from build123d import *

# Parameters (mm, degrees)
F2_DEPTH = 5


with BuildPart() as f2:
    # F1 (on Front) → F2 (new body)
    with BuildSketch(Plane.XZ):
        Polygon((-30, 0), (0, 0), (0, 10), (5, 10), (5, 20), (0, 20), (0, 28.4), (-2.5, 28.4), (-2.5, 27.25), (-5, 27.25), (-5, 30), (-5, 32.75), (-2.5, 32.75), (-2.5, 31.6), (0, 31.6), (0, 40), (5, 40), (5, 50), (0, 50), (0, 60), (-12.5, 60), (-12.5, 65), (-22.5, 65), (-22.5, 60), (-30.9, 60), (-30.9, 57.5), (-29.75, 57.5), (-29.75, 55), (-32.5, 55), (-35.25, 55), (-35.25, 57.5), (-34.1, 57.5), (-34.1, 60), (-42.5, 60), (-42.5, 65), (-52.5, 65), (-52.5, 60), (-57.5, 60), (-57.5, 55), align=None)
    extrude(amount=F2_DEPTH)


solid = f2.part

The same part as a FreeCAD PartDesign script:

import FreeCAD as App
import Part
import Sketcher

doc = App.newDocument("Part")
body = doc.addObject("PartDesign::Body", "Body")

sketch1 = doc.addObject("Sketcher::SketchObject", "Sketch")
body.addObject(sketch1)
sketch1.AttachmentSupport = (doc.XZ_Plane, [""])
sketch1.MapMode = "FlatFace"
sketch1.addGeometry([
    Part.LineSegment(App.Vector(-30, 0, 0), App.Vector(0, 0, 0)),
    Part.LineSegment(App.Vector(0, 0, 0), App.Vector(0, 10, 0)),
    Part.LineSegment(App.Vector(0, 10, 0), App.Vector(5, 10, 0)),
    Part.LineSegment(App.Vector(5, 10, 0), App.Vector(5, 20, 0)),
    Part.LineSegment(App.Vector(5, 20, 0), App.Vector(0, 20, 0)),
    Part.LineSegment(App.Vector(0, 20, 0), App.Vector(0, 28.4, 0)),
    Part.LineSegment(App.Vector(0, 28.4, 0), App.Vector(-2.5, 28.4, 0)),
    Part.LineSegment(App.Vector(-2.5, 28.4, 0), App.Vector(-2.5, 27.2, 0)),
    Part.LineSegment(App.Vector(-2.5, 27.2, 0), App.Vector(-5, 27.2, 0)),
    Part.LineSegment(App.Vector(-5, 27.2, 0), App.Vector(-5, 32.8, 0)),
    Part.LineSegment(App.Vector(-5, 32.8, 0), App.Vector(-2.5, 32.8, 0)),
    Part.LineSegment(App.Vector(-2.5, 32.8, 0), App.Vector(-2.5, 31.6, 0)),
    Part.LineSegment(App.Vector(-2.5, 31.6, 0), App.Vector(0, 31.6, 0)),
    Part.LineSegment(App.Vector(0, 31.6, 0), App.Vector(0, 40, 0)),
    Part.LineSegment(App.Vector(0, 40, 0), App.Vector(5, 40, 0)),
    Part.LineSegment(App.Vector(5, 40, 0), App.Vector(5, 50, 0)),
    Part.LineSegment(App.Vector(5, 50, 0), App.Vector(0, 50, 0)),
    Part.LineSegment(App.Vector(0, 50, 0), App.Vector(0, 60, 0)),
    Part.LineSegment(App.Vector(0, 60, 0), App.Vector(-12.5, 60, 0)),
    Part.LineSegment(App.Vector(-12.5, 60, 0), App.Vector(-12.5, 65, 0)),
    Part.LineSegment(App.Vector(-12.5, 65, 0), App.Vector(-22.5, 65, 0)),
    Part.LineSegment(App.Vector(-22.5, 65, 0), App.Vector(-22.5, 60, 0)),
    Part.LineSegment(App.Vector(-22.5, 60, 0), App.Vector(-30.9, 60, 0)),
    Part.LineSegment(App.Vector(-30.9, 60, 0), App.Vector(-30.9, 57.5, 0)),
    Part.LineSegment(App.Vector(-30.9, 57.5, 0), App.Vector(-29.8, 57.5, 0)),
    Part.LineSegment(App.Vector(-29.8, 57.5, 0), App.Vector(-29.8, 55, 0)),
    Part.LineSegment(App.Vector(-29.8, 55, 0), App.Vector(-35.2, 55, 0)),
    Part.LineSegment(App.Vector(-35.2, 55, 0), App.Vector(-35.2, 57.5, 0)),
    Part.LineSegment(App.Vector(-35.2, 57.5, 0), App.Vector(-34.1, 57.5, 0)),
    Part.LineSegment(App.Vector(-34.1, 57.5, 0), App.Vector(-34.1, 60, 0)),
    Part.LineSegment(App.Vector(-34.1, 60, 0), App.Vector(-42.5, 60, 0)),
    Part.LineSegment(App.Vector(-42.5, 60, 0), App.Vector(-42.5, 65, 0)),
    Part.LineSegment(App.Vector(-42.5, 65, 0), App.Vector(-52.5, 65, 0)),
    Part.LineSegment(App.Vector(-52.5, 65, 0), App.Vector(-52.5, 60, 0)),
    Part.LineSegment(App.Vector(-52.5, 60, 0), App.Vector(-57.5, 60, 0)),
    Part.LineSegment(App.Vector(-57.5, 60, 0), App.Vector(-57.5, 55, 0)),
    Part.LineSegment(App.Vector(-57.5, 55, 0), App.Vector(-30, 0, 0)),
], False)
sketch1.addConstraint([
    Sketcher.Constraint("Coincident", 0, 2, 1, 1),
    Sketcher.Constraint("Coincident", 1, 2, 2, 1),
    Sketcher.Constraint("Coincident", 2, 2, 3, 1),
    Sketcher.Constraint("Coincident", 3, 2, 4, 1),
    Sketcher.Constraint("Coincident", 4, 2, 5, 1),
    Sketcher.Constraint("Coincident", 5, 2, 6, 1),
    Sketcher.Constraint("Coincident", 6, 2, 7, 1),
    Sketcher.Constraint("Coincident", 7, 2, 8, 1),
    Sketcher.Constraint("Coincident", 8, 2, 9, 1),
    Sketcher.Constraint("Coincident", 9, 2, 10, 1),
    Sketcher.Constraint("Coincident", 10, 2, 11, 1),
    Sketcher.Constraint("Coincident", 11, 2, 12, 1),
    Sketcher.Constraint("Coincident", 12, 2, 13, 1),
    Sketcher.Constraint("Coincident", 13, 2, 14, 1),
    Sketcher.Constraint("Coincident", 14, 2, 15, 1),
    Sketcher.Constraint("Coincident", 15, 2, 16, 1),
    Sketcher.Constraint("Coincident", 16, 2, 17, 1),
    Sketcher.Constraint("Coincident", 17, 2, 18, 1),
    Sketcher.Constraint("Coincident", 18, 2, 19, 1),
    Sketcher.Constraint("Coincident", 19, 2, 20, 1),
    Sketcher.Constraint("Coincident", 20, 2, 21, 1),
    Sketcher.Constraint("Coincident", 21, 2, 22, 1),
    Sketcher.Constraint("Coincident", 22, 2, 23, 1),
    Sketcher.Constraint("Coincident", 23, 2, 24, 1),
    Sketcher.Constraint("Coincident", 24, 2, 25, 1),
    Sketcher.Constraint("Coincident", 25, 2, 26, 1),
    Sketcher.Constraint("Coincident", 26, 2, 27, 1),
    Sketcher.Constraint("Coincident", 27, 2, 28, 1),
    Sketcher.Constraint("Coincident", 28, 2, 29, 1),
    Sketcher.Constraint("Coincident", 29, 2, 30, 1),
    Sketcher.Constraint("Coincident", 30, 2, 31, 1),
    Sketcher.Constraint("Coincident", 31, 2, 32, 1),
    Sketcher.Constraint("Coincident", 32, 2, 33, 1),
    Sketcher.Constraint("Coincident", 33, 2, 34, 1),
    Sketcher.Constraint("Coincident", 34, 2, 35, 1),
    Sketcher.Constraint("Coincident", 35, 2, 36, 1),
    Sketcher.Constraint("Coincident", 36, 2, 0, 1),
    Sketcher.Constraint("Horizontal", 0),
    Sketcher.Constraint("Vertical", 1),
    Sketcher.Constraint("Horizontal", 2),
    Sketcher.Constraint("Vertical", 3),
    Sketcher.Constraint("Horizontal", 4),
    Sketcher.Constraint("Vertical", 5),
    Sketcher.Constraint("Horizontal", 6),
    Sketcher.Constraint("Vertical", 7),
    Sketcher.Constraint("Horizontal", 8),
    Sketcher.Constraint("Vertical", 9),
    Sketcher.Constraint("Horizontal", 10),
    Sketcher.Constraint("Vertical", 11),
    Sketcher.Constraint("Horizontal", 12),
    Sketcher.Constraint("Vertical", 13),
    Sketcher.Constraint("Horizontal", 14),
    Sketcher.Constraint("Vertical", 15),
    Sketcher.Constraint("Horizontal", 16),
    Sketcher.Constraint("Vertical", 17),
    Sketcher.Constraint("Horizontal", 18),
    Sketcher.Constraint("Vertical", 19),
    Sketcher.Constraint("Horizontal", 20),
    Sketcher.Constraint("Vertical", 21),
    Sketcher.Constraint("Horizontal", 22),
    Sketcher.Constraint("Vertical", 23),
    Sketcher.Constraint("Horizontal", 24),
    Sketcher.Constraint("Vertical", 25),
    Sketcher.Constraint("Horizontal", 26),
    Sketcher.Constraint("Vertical", 27),
    Sketcher.Constraint("Horizontal", 28),
    Sketcher.Constraint("Vertical", 29),
    Sketcher.Constraint("Horizontal", 30),
    Sketcher.Constraint("Vertical", 31),
    Sketcher.Constraint("Horizontal", 32),
    Sketcher.Constraint("Vertical", 33),
    Sketcher.Constraint("Horizontal", 34),
    Sketcher.Constraint("Vertical", 35),
    Sketcher.Constraint("Coincident", 0, 2, -1, 1),
    Sketcher.Constraint("PointOnObject", 4, 2, -2),
    Sketcher.Constraint("PointOnObject", 12, 2, -2),
    Sketcher.Constraint("PointOnObject", 16, 2, -2),
    Sketcher.Constraint("Horizontal", 18, 2, 21, 2),
    Sketcher.Constraint("Horizontal", 24, 2, 27, 2),
    Sketcher.Constraint("Horizontal", 22, 2, 29, 2),
    Sketcher.Constraint("Horizontal", 20, 2, 31, 2),
    Sketcher.Constraint("Horizontal", 30, 2, 33, 2),
    Sketcher.Constraint("Horizontal", 26, 2, 35, 2),
    Sketcher.Constraint("Vertical", 7, 2, 10, 2),
    Sketcher.Constraint("Vertical", 3, 2, 14, 2),
    Sketcher.Constraint("Equal", 6, 8),
    Sketcher.Constraint("Equal", 24, 28),
    Sketcher.Constraint("Equal", 22, 30),
    Sketcher.Constraint("Equal", 20, 32),
    Sketcher.Constraint("Equal", 16, 34),
    Sketcher.Constraint("Equal", 32, 1),
    Sketcher.Constraint("Equal", 1, 3),
    Sketcher.Constraint("Equal", 30, 5),
    Sketcher.Constraint("Equal", 28, 7),
    Sketcher.Constraint("Equal", 26, 9),
    Sketcher.Constraint("Equal", 7, 11),
    Sketcher.Constraint("Equal", 5, 13),
    Sketcher.Constraint("Equal", 3, 15),
    Sketcher.Constraint("Equal", 15, 17),
    Sketcher.Constraint("Equal", 34, 19),
    Sketcher.Constraint("Equal", 12, 23),
    Sketcher.Constraint("Equal", 23, 25),
    Sketcher.Constraint("Equal", 33, 35),
    Sketcher.Constraint("DistanceX", 0, 1, 0, 2, 30.0),
    Sketcher.Constraint("DistanceX", 2, 1, 2, 2, 5.0),
    Sketcher.Constraint("DistanceX", 20, 2, 20, 1, 10.0),
    Sketcher.Constraint("DistanceX", 18, 2, 18, 1, 12.5),
    Sketcher.Constraint("DistanceX", 22, 2, 22, 1, 8.4),
    Sketcher.Constraint("DistanceX", 26, 2, 26, 1, 5.5),
    Sketcher.Constraint("DistanceY", -1, 1, 13, 2, 40.0),
])
pad1 = doc.addObject("PartDesign::Pad", "Pad")
body.addObject(pad1)
pad1.Profile = sketch1
pad1.Length = 5

doc.recompute()
